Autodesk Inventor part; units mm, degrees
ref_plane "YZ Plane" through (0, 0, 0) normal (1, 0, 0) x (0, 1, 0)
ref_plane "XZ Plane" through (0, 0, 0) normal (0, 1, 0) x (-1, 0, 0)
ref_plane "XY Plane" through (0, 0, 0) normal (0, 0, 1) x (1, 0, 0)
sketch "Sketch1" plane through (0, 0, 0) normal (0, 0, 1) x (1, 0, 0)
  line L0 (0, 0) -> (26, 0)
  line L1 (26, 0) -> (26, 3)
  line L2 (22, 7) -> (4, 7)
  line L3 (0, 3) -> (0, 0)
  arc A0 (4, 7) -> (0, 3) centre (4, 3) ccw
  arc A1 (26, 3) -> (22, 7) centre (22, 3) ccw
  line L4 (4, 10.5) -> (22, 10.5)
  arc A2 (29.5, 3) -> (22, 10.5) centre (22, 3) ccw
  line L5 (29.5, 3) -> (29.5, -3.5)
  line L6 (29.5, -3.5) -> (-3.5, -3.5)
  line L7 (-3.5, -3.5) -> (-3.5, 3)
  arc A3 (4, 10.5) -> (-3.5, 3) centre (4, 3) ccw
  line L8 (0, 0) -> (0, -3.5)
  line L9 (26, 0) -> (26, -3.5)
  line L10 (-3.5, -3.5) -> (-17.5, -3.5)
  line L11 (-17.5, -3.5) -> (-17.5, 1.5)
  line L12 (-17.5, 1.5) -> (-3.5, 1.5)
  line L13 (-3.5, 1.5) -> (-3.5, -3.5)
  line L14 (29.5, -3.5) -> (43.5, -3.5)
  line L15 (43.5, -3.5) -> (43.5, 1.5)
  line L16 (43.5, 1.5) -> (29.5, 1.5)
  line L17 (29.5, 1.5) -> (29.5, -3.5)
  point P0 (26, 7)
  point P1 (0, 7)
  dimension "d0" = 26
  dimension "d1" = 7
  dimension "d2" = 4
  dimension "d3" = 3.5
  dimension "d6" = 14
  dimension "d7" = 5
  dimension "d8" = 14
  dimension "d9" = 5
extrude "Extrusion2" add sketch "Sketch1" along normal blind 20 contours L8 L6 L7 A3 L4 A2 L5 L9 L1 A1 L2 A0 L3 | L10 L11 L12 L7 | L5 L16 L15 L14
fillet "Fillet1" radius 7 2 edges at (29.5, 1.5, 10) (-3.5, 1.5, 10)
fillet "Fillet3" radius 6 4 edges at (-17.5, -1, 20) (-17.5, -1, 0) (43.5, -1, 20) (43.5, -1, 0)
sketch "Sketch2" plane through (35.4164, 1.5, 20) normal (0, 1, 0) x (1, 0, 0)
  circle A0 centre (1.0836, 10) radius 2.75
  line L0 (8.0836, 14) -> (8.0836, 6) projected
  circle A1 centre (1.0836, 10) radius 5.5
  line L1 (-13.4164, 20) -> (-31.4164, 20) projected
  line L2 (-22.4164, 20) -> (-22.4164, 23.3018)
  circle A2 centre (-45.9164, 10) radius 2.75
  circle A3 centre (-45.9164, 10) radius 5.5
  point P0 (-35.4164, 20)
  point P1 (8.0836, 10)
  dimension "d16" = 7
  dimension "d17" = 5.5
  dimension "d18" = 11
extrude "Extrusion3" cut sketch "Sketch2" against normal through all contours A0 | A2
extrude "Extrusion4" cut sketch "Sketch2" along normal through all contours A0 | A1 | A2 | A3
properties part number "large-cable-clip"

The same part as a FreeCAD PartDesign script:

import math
import FreeCAD as App
import Part
import Sketcher
from FreeCAD import Vector


def edges_at(feature, points):
    """Names of the edges that pass closest to the given points."""
    edges = feature.Shape.Edges
    near = lambda p: min(range(len(edges)), key=lambda i: edges[i].distToShape(Part.Vertex(*p))[0])
    return sorted({f"Edge{near(p) + 1}" for p in points})

doc = App.newDocument("Part")
body = doc.addObject("PartDesign::Body", "Body")

# Sketch on XY plane
sketch1 = doc.addObject("Sketcher::SketchObject", "Sketch")
body.addObject(sketch1)
sketch1.AttachmentSupport = (doc.XY_Plane, [""])
sketch1.MapMode = "FlatFace"
sketch1.addGeometry([
    Part.LineSegment(Vector(0, -3.5, 0), Vector(0, 3, 0)),  # 0
    Part.ArcOfCircle(Part.Circle(Vector(4, 3, 0), Vector(0, 0, 1), 4), math.radians(90), math.radians(180)),  # 1
    Part.LineSegment(Vector(4, 7, 0), Vector(22, 7, 0)),  # 2
    Part.ArcOfCircle(Part.Circle(Vector(22, 3, 0), Vector(0, 0, 1), 4), math.radians(0), math.radians(90)),  # 3
    Part.LineSegment(Vector(26, 3, 0), Vector(26, -3.5, 0)),  # 4
    Part.LineSegment(Vector(26, -3.5, 0), Vector(43.5, -3.5, 0)),  # 5
    Part.LineSegment(Vector(43.5, -3.5, 0), Vector(43.5, 1.5, 0)),  # 6
    Part.LineSegment(Vector(43.5, 1.5, 0), Vector(29.5, 1.5, 0)),  # 7
    Part.LineSegment(Vector(29.5, 1.5, 0), Vector(29.5, 3, 0)),  # 8
    Part.ArcOfCircle(Part.Circle(Vector(22, 3, 0), Vector(0, 0, 1), 7.5), math.radians(0), math.radians(90)),  # 9
    Part.LineSegment(Vector(22, 10.5, 0), Vector(4, 10.5, 0)),  # 10
    Part.ArcOfCircle(Part.Circle(Vector(4, 3, 0), Vector(0, 0, 1), 7.5), math.radians(90), math.radians(180)),  # 11
    Part.LineSegment(Vector(-3.5, 3, 0), Vector(-3.5, 1.5, 0)),  # 12
    Part.LineSegment(Vector(-3.5, 1.5, 0), Vector(-17.5, 1.5, 0)),  # 13
    Part.LineSegment(Vector(-17.5, 1.5, 0), Vector(-17.5, -3.5, 0)),  # 14
    Part.LineSegment(Vector(-17.5, -3.5, 0), Vector(0, -3.5, 0)),  # 15
], False)
sketch1.addConstraint([
    Sketcher.Constraint("Tangent", 0, 2, 1, 2),
    Sketcher.Constraint("Tangent", 1, 1, 2, 1),
    Sketcher.Constraint("Tangent", 2, 2, 3, 2),
    Sketcher.Constraint("Tangent", 3, 1, 4, 1),
    Sketcher.Constraint("Coincident", 4, 2, 5, 1),
    Sketcher.Constraint("Coincident", 5, 2, 6, 1),
    Sketcher.Constraint("Coincident", 6, 2, 7, 1),
    Sketcher.Constraint("Coincident", 7, 2, 8, 1),
    Sketcher.Constraint("Tangent", 8, 2, 9, 1),
    Sketcher.Constraint("Tangent", 9, 2, 10, 1),
    Sketcher.Constraint("Tangent", 10, 2, 11, 1),
    Sketcher.Constraint("Tangent", 11, 2, 12, 1),
    Sketcher.Constraint("Coincident", 12, 2, 13, 1),
    Sketcher.Constraint("Coincident", 13, 2, 14, 1),
    Sketcher.Constraint("Coincident", 14, 2, 15, 1),
    Sketcher.Constraint("Coincident", 15, 2, 0, 1),
    Sketcher.Constraint("Vertical", 0),
    Sketcher.Constraint("Horizontal", 2),
    Sketcher.Constraint("Vertical", 4),
    Sketcher.Constraint("Horizontal", 5),
    Sketcher.Constraint("Vertical", 6),
    Sketcher.Constraint("Horizontal", 7),
    Sketcher.Constraint("Vertical", 8),
    Sketcher.Constraint("Horizontal", 10),
    Sketcher.Constraint("Vertical", 12),
    Sketcher.Constraint("Horizontal", 13),
    Sketcher.Constraint("Vertical", 14),
    Sketcher.Constraint("Horizontal", 15),
    Sketcher.Constraint("Coincident", 9, 3, 3, 3),
    Sketcher.Constraint("Coincident", 11, 3, 1, 3),
    Sketcher.Constraint("Equal", 1, 3),
    Sketcher.Constraint("PointOnObject", 0, 2, -2),
    Sketcher.Constraint("Horizontal", 7, 2, 12, 2),
    Sketcher.Constraint("Horizontal", 5, 2, 14, 2),
    Sketcher.Constraint("Equal", 7, 13),
    Sketcher.Constraint("Radius", 1, 4.0),
    Sketcher.Constraint("DistanceX", 7, 2, 7, 1, 14.0),
    Sketcher.Constraint("DistanceY", 6, 1, 6, 2, 5.0),
    Sketcher.Constraint("DistanceY", -1, 1, 1, 1, 7.0),
    Sketcher.Constraint("DistanceX", -1, 1, 3, 1, 26.0),
    Sketcher.Constraint("DistanceY", 4, 2, -1, 1, 3.5),
    Sketcher.Constraint("DistanceX", 11, 2, -1, 1, 3.5),
])
pad1 = doc.addObject("PartDesign::Pad", "Pad")
body.addObject(pad1)
pad1.Profile = sketch1
pad1.Length = 20
doc.recompute()

fillet = doc.addObject("PartDesign::Fillet", "Fillet")
body.addObject(fillet)
fillet.Base = (pad1, edges_at(pad1, [(29.5, 1.5, 10), (-3.5, 1.5, 10)]))
fillet.Radius = 7
doc.recompute()

fillet2 = doc.addObject("PartDesign::Fillet", "Fillet001")
body.addObject(fillet2)
fillet2.Base = (fillet, edges_at(fillet, [
    (-17.5, -1, 20),
    (-17.5, -1, 0),
    (43.5, -1, 20),
    (43.5, -1, 0),
]))
fillet2.Radius = 6

# Sketch on XZ plane
sketch2 = doc.addObject("Sketcher::SketchObject", "Sketch001")
body.addObject(sketch2)
sketch2.AttachmentSupport = (doc.XZ_Plane, [""])
sketch2.MapMode = "FlatFace"
sketch2.AttachmentOffset = App.Placement(Vector(0, 0, -1.5), App.Rotation())
sketch2.addGeometry([
    Part.Circle(Vector(36.5, 10, 0), Vector(0, 0, 1), 2.8),
    Part.Circle(Vector(-10.5, 10, 0), Vector(0, 0, 1), 2.8),
], False)
sketch2.addConstraint([
    Sketcher.Constraint("Equal", 0, 1),
    Sketcher.Constraint("Horizontal", 0, 3, 1, 3),
    Sketcher.Constraint("Diameter", 0, 5.5),
    Sketcher.Constraint("DistanceY", -1, 1, 0, 3, 10.0),
    Sketcher.Constraint("DistanceX", 1, 3, 0, 3, 47.0),
    Sketcher.Constraint("DistanceX", -1, 1, 0, 3, 36.5),
])
pocket1 = doc.addObject("PartDesign::Pocket", "Pocket")
body.addObject(pocket1)
pocket1.Profile = sketch2
pocket1.Type = "ThroughAll"
pocket1.Reversed = True

# Sketch on XZ plane
sketch3 = doc.addObject("Sketcher::SketchObject", "Sketch002")
body.addObject(sketch3)
sketch3.AttachmentSupport = (doc.XZ_Plane, [""])
sketch3.MapMode = "FlatFace"
sketch3.AttachmentOffset = App.Placement(Vector(0, 0, -1.5), App.Rotation())
sketch3.addGeometry([
    Part.Circle(Vector(36, 10, 0), Vector(0, 0, 1), 6),
    Part.Circle(Vector(-10, 10, 0), Vector(0, 0, 1), 6),
], False)
sketch3.addConstraint([
    Sketcher.Constraint("Equal", 0, 1),
    Sketcher.Constraint("Horizontal", 0, 3, 1, 3),
    Sketcher.Constraint("Diameter", 0, 11.0),
    Sketcher.Constraint("DistanceY", -1, 1, 0, 3, 10.0),
    Sketcher.Constraint("DistanceX", 1, 3, 0, 3, 47.0),
    Sketcher.Constraint("DistanceX", -1, 1, 0, 3, 36.5),
])
pocket2 = doc.addObject("PartDesign::Pocket", "Pocket001")
body.addObject(pocket2)
pocket2.Profile = sketch3
pocket2.Type = "ThroughAll"

doc.recompute()
